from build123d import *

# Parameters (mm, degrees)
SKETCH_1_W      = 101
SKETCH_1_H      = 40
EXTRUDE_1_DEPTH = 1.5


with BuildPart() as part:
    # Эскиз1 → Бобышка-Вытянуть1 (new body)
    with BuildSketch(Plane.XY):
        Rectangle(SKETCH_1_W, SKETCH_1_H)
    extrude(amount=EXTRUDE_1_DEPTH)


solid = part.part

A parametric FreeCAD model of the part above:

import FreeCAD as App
import Part
import Sketcher

V = App.Vector
Q = App.Units.Quantity


def add_polygon(sketch, points):
    """Adds a closed chain of lines whose ends are joined by coincident constraints."""
    first, n = sketch.GeometryCount, len(points)
    for a, b in zip(points, points[1:] + points[:1]):
        sketch.addGeometry(Part.LineSegment(App.Vector(*a, 0), App.Vector(*b, 0)), False)
    for i in range(n):
        sketch.addConstraint(Sketcher.Constraint("Coincident", first + i, 2, first + (i + 1) % n, 1))

doc = App.newDocument("Part")
body = doc.addObject("PartDesign::Body", "Body")

# Sketch on XY plane
sketch1 = body.newObject("Sketcher::SketchObject", "Sketch")
sketch1.AttachmentSupport = (doc.getObject("XY_Plane"), [""])
sketch1.MapMode = "FlatFace"
add_polygon(sketch1, [(-50.5, 20), (-50.5, -20), (50.5, -20), (50.5, 20)])  # lines 0-3
sketch1.addConstraint(Sketcher.Constraint("Vertical", 0))
sketch1.addConstraint(Sketcher.Constraint("Horizontal", 1))
sketch1.addConstraint(Sketcher.Constraint("Vertical", 2))
sketch1.addConstraint(Sketcher.Constraint("Horizontal", 3))
sketch1.addConstraint(Sketcher.Constraint("Symmetric", 0, 2, 2, 2, -1, 1))
sketch1.addConstraint(Sketcher.Constraint("DistanceX", 1, 1, 1, 2, Q("101 mm")))
sketch1.addConstraint(Sketcher.Constraint("DistanceY", 0, 2, 0, 1, Q("40 mm")))
pad1 = body.newObject("PartDesign::Pad", "Pad")
pad1.Profile = sketch1
pad1.Length = 1.5

doc.recompute()
